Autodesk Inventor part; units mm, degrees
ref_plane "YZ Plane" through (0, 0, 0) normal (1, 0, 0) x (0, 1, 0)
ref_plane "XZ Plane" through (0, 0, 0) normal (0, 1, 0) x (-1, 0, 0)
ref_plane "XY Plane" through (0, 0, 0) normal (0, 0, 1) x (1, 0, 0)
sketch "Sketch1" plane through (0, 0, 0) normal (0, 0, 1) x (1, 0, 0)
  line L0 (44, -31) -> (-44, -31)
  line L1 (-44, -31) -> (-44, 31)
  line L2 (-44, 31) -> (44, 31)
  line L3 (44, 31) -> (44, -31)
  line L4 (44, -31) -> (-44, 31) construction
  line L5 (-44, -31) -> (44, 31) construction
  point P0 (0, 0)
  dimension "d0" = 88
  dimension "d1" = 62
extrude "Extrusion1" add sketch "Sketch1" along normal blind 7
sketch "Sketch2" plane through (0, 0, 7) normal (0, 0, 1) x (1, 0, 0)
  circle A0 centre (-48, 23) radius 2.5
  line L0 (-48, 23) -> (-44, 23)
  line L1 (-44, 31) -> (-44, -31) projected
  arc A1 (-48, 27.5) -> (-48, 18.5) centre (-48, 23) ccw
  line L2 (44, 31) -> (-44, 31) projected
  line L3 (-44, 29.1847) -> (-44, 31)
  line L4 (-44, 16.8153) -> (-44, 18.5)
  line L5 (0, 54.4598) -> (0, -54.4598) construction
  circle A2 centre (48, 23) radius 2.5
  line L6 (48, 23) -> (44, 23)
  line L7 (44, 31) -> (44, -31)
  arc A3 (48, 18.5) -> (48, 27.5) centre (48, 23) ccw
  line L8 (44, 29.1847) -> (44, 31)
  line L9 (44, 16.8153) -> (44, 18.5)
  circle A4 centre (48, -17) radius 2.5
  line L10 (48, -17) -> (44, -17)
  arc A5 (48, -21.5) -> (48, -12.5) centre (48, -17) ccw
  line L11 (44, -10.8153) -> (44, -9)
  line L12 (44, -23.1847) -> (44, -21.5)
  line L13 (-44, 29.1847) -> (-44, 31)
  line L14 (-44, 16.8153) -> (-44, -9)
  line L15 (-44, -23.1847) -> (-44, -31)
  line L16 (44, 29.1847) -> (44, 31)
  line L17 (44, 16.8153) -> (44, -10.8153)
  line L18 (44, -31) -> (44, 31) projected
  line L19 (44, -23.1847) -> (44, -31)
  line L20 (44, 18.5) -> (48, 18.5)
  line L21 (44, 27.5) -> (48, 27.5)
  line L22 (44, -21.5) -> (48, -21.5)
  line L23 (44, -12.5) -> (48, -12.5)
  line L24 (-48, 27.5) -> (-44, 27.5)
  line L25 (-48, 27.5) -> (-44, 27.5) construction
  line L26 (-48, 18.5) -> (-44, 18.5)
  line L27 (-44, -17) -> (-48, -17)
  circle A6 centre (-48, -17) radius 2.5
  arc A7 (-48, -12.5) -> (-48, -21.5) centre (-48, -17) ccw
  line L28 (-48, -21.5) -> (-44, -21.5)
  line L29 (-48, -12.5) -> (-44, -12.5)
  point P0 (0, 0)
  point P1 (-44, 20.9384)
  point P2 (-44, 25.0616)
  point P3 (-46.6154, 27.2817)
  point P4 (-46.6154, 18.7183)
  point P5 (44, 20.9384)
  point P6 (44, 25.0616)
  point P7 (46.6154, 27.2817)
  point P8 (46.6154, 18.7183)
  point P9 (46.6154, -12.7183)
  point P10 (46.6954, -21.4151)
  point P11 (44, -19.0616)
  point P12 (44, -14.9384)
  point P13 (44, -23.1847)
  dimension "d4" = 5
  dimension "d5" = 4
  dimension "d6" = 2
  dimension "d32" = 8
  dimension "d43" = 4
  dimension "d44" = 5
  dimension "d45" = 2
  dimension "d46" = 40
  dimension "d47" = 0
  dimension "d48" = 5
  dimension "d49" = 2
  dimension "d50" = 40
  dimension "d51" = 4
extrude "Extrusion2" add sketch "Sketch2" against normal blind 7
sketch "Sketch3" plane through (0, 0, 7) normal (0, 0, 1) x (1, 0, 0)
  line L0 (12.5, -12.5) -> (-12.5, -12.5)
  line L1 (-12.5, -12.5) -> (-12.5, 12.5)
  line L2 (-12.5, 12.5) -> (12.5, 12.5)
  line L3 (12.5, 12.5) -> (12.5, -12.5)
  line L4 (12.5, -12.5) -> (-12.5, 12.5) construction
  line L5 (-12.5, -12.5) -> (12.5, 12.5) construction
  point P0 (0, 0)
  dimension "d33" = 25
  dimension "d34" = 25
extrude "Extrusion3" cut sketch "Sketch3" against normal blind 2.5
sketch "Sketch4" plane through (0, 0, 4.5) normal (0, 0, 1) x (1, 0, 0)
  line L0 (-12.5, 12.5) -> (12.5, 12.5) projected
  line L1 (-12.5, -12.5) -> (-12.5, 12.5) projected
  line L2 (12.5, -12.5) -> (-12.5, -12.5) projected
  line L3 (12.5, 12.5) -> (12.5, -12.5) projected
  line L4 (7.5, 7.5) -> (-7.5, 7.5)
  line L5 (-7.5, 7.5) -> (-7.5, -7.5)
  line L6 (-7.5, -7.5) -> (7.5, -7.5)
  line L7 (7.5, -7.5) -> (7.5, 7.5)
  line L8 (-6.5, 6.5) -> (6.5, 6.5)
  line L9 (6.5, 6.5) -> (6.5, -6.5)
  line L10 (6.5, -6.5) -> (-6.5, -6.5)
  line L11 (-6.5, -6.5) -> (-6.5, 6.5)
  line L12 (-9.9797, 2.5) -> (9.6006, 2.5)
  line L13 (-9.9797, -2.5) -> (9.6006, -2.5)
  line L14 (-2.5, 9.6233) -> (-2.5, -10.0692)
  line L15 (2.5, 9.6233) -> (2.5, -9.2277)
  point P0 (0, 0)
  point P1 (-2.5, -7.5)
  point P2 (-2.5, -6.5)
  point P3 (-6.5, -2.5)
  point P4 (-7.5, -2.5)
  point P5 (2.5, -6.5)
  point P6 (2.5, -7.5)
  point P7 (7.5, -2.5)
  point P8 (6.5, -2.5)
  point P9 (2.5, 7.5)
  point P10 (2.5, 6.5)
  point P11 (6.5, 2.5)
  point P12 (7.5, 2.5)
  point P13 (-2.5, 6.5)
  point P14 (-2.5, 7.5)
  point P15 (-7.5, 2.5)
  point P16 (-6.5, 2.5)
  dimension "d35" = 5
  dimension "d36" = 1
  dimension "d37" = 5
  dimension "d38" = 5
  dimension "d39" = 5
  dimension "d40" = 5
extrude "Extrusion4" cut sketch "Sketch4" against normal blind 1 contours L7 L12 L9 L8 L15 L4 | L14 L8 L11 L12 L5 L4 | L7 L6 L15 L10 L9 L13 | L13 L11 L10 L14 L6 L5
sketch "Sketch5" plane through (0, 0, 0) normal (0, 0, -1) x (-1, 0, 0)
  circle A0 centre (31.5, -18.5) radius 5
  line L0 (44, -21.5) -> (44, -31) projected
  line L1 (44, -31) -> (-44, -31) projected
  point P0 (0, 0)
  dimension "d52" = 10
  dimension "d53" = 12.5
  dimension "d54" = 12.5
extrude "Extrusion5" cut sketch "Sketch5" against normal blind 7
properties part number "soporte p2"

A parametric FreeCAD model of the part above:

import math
import FreeCAD as App
import Part
import Sketcher
from FreeCAD import Vector

doc = App.newDocument("Part")
body = doc.addObject("PartDesign::Body", "Body")

# Sketch on XY plane
sketch1 = doc.addObject("Sketcher::SketchObject", "Sketch")
body.addObject(sketch1)
sketch1.AttachmentSupport = (doc.XY_Plane, [""])
sketch1.MapMode = "FlatFace"
sketch1.addGeometry([
    Part.LineSegment(Vector(-44, -31, 0), Vector(44, -31, 0)),
    Part.LineSegment(Vector(44, -31, 0), Vector(44, 31, 0)),
    Part.LineSegment(Vector(44, 31, 0), Vector(-44, 31, 0)),
    Part.LineSegment(Vector(-44, 31, 0), Vector(-44, -31, 0)),
], False)
sketch1.addConstraint([
    Sketcher.Constraint("Coincident", 0, 2, 1, 1),
    Sketcher.Constraint("Coincident", 1, 2, 2, 1),
    Sketcher.Constraint("Coincident", 2, 2, 3, 1),
    Sketcher.Constraint("Coincident", 3, 2, 0, 1),
    Sketcher.Constraint("Horizontal", 0),
    Sketcher.Constraint("Vertical", 1),
    Sketcher.Constraint("Horizontal", 2),
    Sketcher.Constraint("Vertical", 3),
    Sketcher.Constraint("Symmetric", 0, 2, 2, 2, -1, 1),
    Sketcher.Constraint("DistanceX", 0, 1, 0, 2, 88.0),
    Sketcher.Constraint("DistanceY", 1, 1, 1, 2, 62.0),
])
pad1 = doc.addObject("PartDesign::Pad", "Pad")
body.addObject(pad1)
pad1.Profile = sketch1
pad1.Length = 7

# Sketch on XY plane
sketch2 = doc.addObject("Sketcher::SketchObject", "Sketch001")
body.addObject(sketch2)
sketch2.AttachmentSupport = (doc.XY_Plane, [""])
sketch2.MapMode = "FlatFace"
sketch2.AttachmentOffset = App.Placement(Vector(0, 0, 7), App.Rotation())
sketch2.addGeometry([
    Part.LineSegment(Vector(-44, 18.5, 0), Vector(-44, 23, 0)),  # 0
    Part.LineSegment(Vector(-44, 23, 0), Vector(-44, 27.5, 0)),  # 1
    Part.LineSegment(Vector(-44, 27.5, 0), Vector(-48, 27.5, 0)),  # 2
    Part.ArcOfCircle(Part.Circle(Vector(-48, 23, 0), Vector(0, 0, 1), 4.5), math.radians(90), math.radians(270)),  # 3
    Part.LineSegment(Vector(-48, 18.5, 0), Vector(-44, 18.5, 0)),  # 4
    Part.Circle(Vector(-48, 23, 0), Vector(0, 0, 1), 2.5),  # 5
    Part.LineSegment(Vector(-44, -17, 0), Vector(-44, -12.5, 0)),  # 6
    Part.LineSegment(Vector(-44, -12.5, 0), Vector(-48, -12.5, 0)),  # 7
    Part.ArcOfCircle(Part.Circle(Vector(-48, -17, 0), Vector(0, 0, 1), 4.5), math.radians(90), math.radians(270)),  # 8
    Part.LineSegment(Vector(-48, -21.5, 0), Vector(-44, -21.5, 0)),  # 9
    Part.LineSegment(Vector(-44, -21.5, 0), Vector(-44, -17, 0)),  # 10
    Part.Circle(Vector(-48, -17, 0), Vector(0, 0, 1), 2.5),  # 11
    Part.LineSegment(Vector(48, -12.5, 0), Vector(44, -12.5, 0)),  # 12
    Part.LineSegment(Vector(44, -12.5, 0), Vector(44, -17, 0)),  # 13
    Part.LineSegment(Vector(44, -17, 0), Vector(44, -21.5, 0)),  # 14
    Part.LineSegment(Vector(44, -21.5, 0), Vector(48, -21.5, 0)),  # 15
    Part.ArcOfCircle(Part.Circle(Vector(48, -17, 0), Vector(0, 0, 1), 4.5), math.radians(-90), math.radians(90)),  # 16
    Part.Circle(Vector(48, -17, 0), Vector(0, 0, 1), 2.5),  # 17
    Part.LineSegment(Vector(48, 27.5, 0), Vector(44, 27.5, 0)),  # 18
    Part.LineSegment(Vector(44, 27.5, 0), Vector(44, 23, 0)),  # 19
    Part.LineSegment(Vector(44, 23, 0), Vector(44, 18.5, 0)),  # 20
    Part.LineSegment(Vector(44, 18.5, 0), Vector(48, 18.5, 0)),  # 21
    Part.ArcOfCircle(Part.Circle(Vector(48, 23, 0), Vector(0, 0, 1), 4.5), math.radians(-90), math.radians(90)),  # 22
    Part.Circle(Vector(48, 23, 0), Vector(0, 0, 1), 2.5),  # 23
], False)
sketch2.addConstraint([
    Sketcher.Constraint("Coincident", 0, 2, 1, 1),
    Sketcher.Constraint("Coincident", 1, 2, 2, 1),
    Sketcher.Constraint("Tangent", 2, 2, 3, 1),
    Sketcher.Constraint("Tangent", 3, 2, 4, 1),
    Sketcher.Constraint("Coincident", 4, 2, 0, 1),
    Sketcher.Constraint("Coincident", 6, 2, 7, 1),
    Sketcher.Constraint("Tangent", 7, 2, 8, 1),
    Sketcher.Constraint("Tangent", 8, 2, 9, 1),
    Sketcher.Constraint("Coincident", 9, 2, 10, 1),
    Sketcher.Constraint("Coincident", 10, 2, 6, 1),
    Sketcher.Constraint("Coincident", 12, 2, 13, 1),
    Sketcher.Constraint("Coincident", 13, 2, 14, 1),
    Sketcher.Constraint("Coincident", 14, 2, 15, 1),
    Sketcher.Constraint("Tangent", 15, 2, 16, 1),
    Sketcher.Constraint("Tangent", 16, 2, 12, 1),
    Sketcher.Constraint("Coincident", 18, 2, 19, 1),
    Sketcher.Constraint("Coincident", 19, 2, 20, 1),
    Sketcher.Constraint("Coincident", 20, 2, 21, 1),
    Sketcher.Constraint("Tangent", 21, 2, 22, 1),
    Sketcher.Constraint("Tangent", 22, 2, 18, 1),
    Sketcher.Constraint("Vertical", 0),
    Sketcher.Constraint("Vertical", 1),
    Sketcher.Constraint("Horizontal", 2),
    Sketcher.Constraint("Horizontal", 4),
    Sketcher.Constraint("Vertical", 6),
    Sketcher.Constraint("Horizontal", 7),
    Sketcher.Constraint("Horizontal", 9),
    Sketcher.Constraint("Vertical", 10),
    Sketcher.Constraint("Horizontal", 12),
    Sketcher.Constraint("Vertical", 13),
    Sketcher.Constraint("Vertical", 14),
    Sketcher.Constraint("Horizontal", 15),
    Sketcher.Constraint("Horizontal", 18),
    Sketcher.Constraint("Vertical", 19),
    Sketcher.Constraint("Vertical", 20),
    Sketcher.Constraint("Horizontal", 21),
    Sketcher.Constraint("Coincident", 5, 3, 3, 3),
    Sketcher.Constraint("Coincident", 11, 3, 8, 3),
    Sketcher.Constraint("Coincident", 17, 3, 16, 3),
    Sketcher.Constraint("Coincident", 23, 3, 22, 3),
    Sketcher.Constraint("Equal", 3, 8),
    Sketcher.Constraint("Equal", 5, 11),
    Sketcher.Constraint("Equal", 8, 16),
    Sketcher.Constraint("Equal", 11, 17),
    Sketcher.Constraint("Equal", 16, 22),
    Sketcher.Constraint("Equal", 17, 23),
    Sketcher.Constraint("Symmetric", 8, 3, 16, 3, -2),
    Sketcher.Constraint("Symmetric", 3, 3, 22, 3, -2),
    Sketcher.Constraint("Symmetric", 10, 2, 13, 2, -2),
    Sketcher.Constraint("Symmetric", 0, 2, 19, 2, -2),
    Sketcher.Constraint("Horizontal", 23, 3, 0, 2),
    Sketcher.Constraint("Horizontal", 17, 3, 10, 2),
    Sketcher.Constraint("Vertical", 5, 3, 8, 3),
    Sketcher.Constraint("Vertical", 4, 2, 6, 2),
    Sketcher.Constraint("Diameter", 5, 5.0),
    Sketcher.Constraint("DistanceX", 2, 2, 2, 1, 4.0),
    Sketcher.Constraint("DistanceY", 8, 3, 3, 3, 40.0),
    Sketcher.Constraint("Radius", 3, 4.5),
    Sketcher.Constraint("DistanceX", 3, 3, -1, 1, 48.0),
    Sketcher.Constraint("DistanceY", -1, 1, 3, 3, 23.0),
])
pad2 = doc.addObject("PartDesign::Pad", "Pad001")
body.addObject(pad2)
pad2.Profile = sketch2
pad2.Length = 7
pad2.Reversed = True

# Sketch on XY plane
sketch3 = doc.addObject("Sketcher::SketchObject", "Sketch002")
body.addObject(sketch3)
sketch3.AttachmentSupport = (doc.XY_Plane, [""])
sketch3.MapMode = "FlatFace"
sketch3.AttachmentOffset = App.Placement(Vector(0, 0, 7), App.Rotation())
sketch3.addGeometry([
    Part.LineSegment(Vector(-12, -12, 0), Vector(12, -12, 0)),
    Part.LineSegment(Vector(12, -12, 0), Vector(12, 12, 0)),
    Part.LineSegment(Vector(12, 12, 0), Vector(-12, 12, 0)),
    Part.LineSegment(Vector(-12, 12, 0), Vector(-12, -12, 0)),
], False)
sketch3.addConstraint([
    Sketcher.Constraint("Coincident", 0, 2, 1, 1),
    Sketcher.Constraint("Coincident", 1, 2, 2, 1),
    Sketcher.Constraint("Coincident", 2, 2, 3, 1),
    Sketcher.Constraint("Coincident", 3, 2, 0, 1),
    Sketcher.Constraint("Horizontal", 0),
    Sketcher.Constraint("Vertical", 1),
    Sketcher.Constraint("Horizontal", 2),
    Sketcher.Constraint("Vertical", 3),
    Sketcher.Constraint("Symmetric", 0, 2, 2, 2, -1, 1),
    Sketcher.Constraint("Equal", 2, 1),
    Sketcher.Constraint("DistanceX", 0, 1, 0, 2, 25.0),
])
pocket1 = doc.addObject("PartDesign::Pocket", "Pocket")
body.addObject(pocket1)
pocket1.Profile = sketch3
pocket1.Length = 2.5

# Sketch on XY plane
sketch4 = doc.addObject("Sketcher::SketchObject", "Sketch003")
body.addObject(sketch4)
sketch4.AttachmentSupport = (doc.XY_Plane, [""])
sketch4.MapMode = "FlatFace"
sketch4.AttachmentOffset = App.Placement(Vector(0, 0, 4.5), App.Rotation())
sketch4.addGeometry([
    Part.LineSegment(Vector(7.5, 2.5, 0), Vector(7.5, 7.5, 0)),  # 0
    Part.LineSegment(Vector(7.5, 7.5, 0), Vector(2.5, 7.5, 0)),  # 1
    Part.LineSegment(Vector(2.5, 7.5, 0), Vector(2.5, 6.5, 0)),  # 2
    Part.LineSegment(Vector(2.5, 6.5, 0), Vector(6.5, 6.5, 0)),  # 3
    Part.LineSegment(Vector(6.5, 6.5, 0), Vector(6.5, 2.5, 0)),  # 4
    Part.LineSegment(Vector(6.5, 2.5, 0), Vector(7.5, 2.5, 0)),  # 5
    Part.LineSegment(Vector(-2.5, 6.5, 0), Vector(-2.5, 7.5, 0)),  # 6
    Part.LineSegment(Vector(-2.5, 7.5, 0), Vector(-7.5, 7.5, 0)),  # 7
    Part.LineSegment(Vector(-7.5, 7.5, 0), Vector(-7.5, 2.5, 0)),  # 8
    Part.LineSegment(Vector(-7.5, 2.5, 0), Vector(-6.5, 2.5, 0)),  # 9
    Part.LineSegment(Vector(-6.5, 2.5, 0), Vector(-6.5, 6.5, 0)),  # 10
    Part.LineSegment(Vector(-6.5, 6.5, 0), Vector(-2.5, 6.5, 0)),  # 11
    Part.LineSegment(Vector(7.5, -7.5, 0), Vector(7.5, -2.5, 0)),  # 12
    Part.LineSegment(Vector(7.5, -2.5, 0), Vector(6.5, -2.5, 0)),  # 13
    Part.LineSegment(Vector(6.5, -2.5, 0), Vector(6.5, -6.5, 0)),  # 14
    Part.LineSegment(Vector(6.5, -6.5, 0), Vector(2.5, -6.5, 0)),  # 15
    Part.LineSegment(Vector(2.5, -6.5, 0), Vector(2.5, -7.5, 0)),  # 16
    Part.LineSegment(Vector(2.5, -7.5, 0), Vector(7.5, -7.5, 0)),  # 17
    Part.LineSegment(Vector(-6.5, -2.5, 0), Vector(-7.5, -2.5, 0)),  # 18
    Part.LineSegment(Vector(-7.5, -2.5, 0), Vector(-7.5, -7.5, 0)),  # 19
    Part.LineSegment(Vector(-7.5, -7.5, 0), Vector(-2.5, -7.5, 0)),  # 20
    Part.LineSegment(Vector(-2.5, -7.5, 0), Vector(-2.5, -6.5, 0)),  # 21
    Part.LineSegment(Vector(-2.5, -6.5, 0), Vector(-6.5, -6.5, 0)),  # 22
    Part.LineSegment(Vector(-6.5, -6.5, 0), Vector(-6.5, -2.5, 0)),  # 23
], False)
sketch4.addConstraint([
    Sketcher.Constraint("Coincident", 0, 2, 1, 1),
    Sketcher.Constraint("Coincident", 1, 2, 2, 1),
    Sketcher.Constraint("Coincident", 2, 2, 3, 1),
    Sketcher.Constraint("Coincident", 3, 2, 4, 1),
    Sketcher.Constraint("Coincident", 4, 2, 5, 1),
    Sketcher.Constraint("Coincident", 5, 2, 0, 1),
    Sketcher.Constraint("Coincident", 6, 2, 7, 1),
    Sketcher.Constraint("Coincident", 7, 2, 8, 1),
    Sketcher.Constraint("Coincident", 8, 2, 9, 1),
    Sketcher.Constraint("Coincident", 9, 2, 10, 1),
    Sketcher.Constraint("Coincident", 10, 2, 11, 1),
    Sketcher.Constraint("Coincident", 11, 2, 6, 1),
    Sketcher.Constraint("Coincident", 12, 2, 13, 1),
    Sketcher.Constraint("Coincident", 13, 2, 14, 1),
    Sketcher.Constraint("Coincident", 14, 2, 15, 1),
    Sketcher.Constraint("Coincident", 15, 2, 16, 1),
    Sketcher.Constraint("Coincident", 16, 2, 17, 1),
    Sketcher.Constraint("Coincident", 17, 2, 12, 1),
    Sketcher.Constraint("Coincident", 18, 2, 19, 1),
    Sketcher.Constraint("Coincident", 19, 2, 20, 1),
    Sketcher.Constraint("Coincident", 20, 2, 21, 1),
    Sketcher.Constraint("Coincident", 21, 2, 22, 1),
    Sketcher.Constraint("Coincident", 22, 2, 23, 1),
    Sketcher.Constraint("Coincident", 23, 2, 18, 1),
    Sketcher.Constraint("Vertical", 0),
    Sketcher.Constraint("Horizontal", 1),
    Sketcher.Constraint("Vertical", 2),
    Sketcher.Constraint("Horizontal", 3),
    Sketcher.Constraint("Vertical", 4),
    Sketcher.Constraint("Horizontal", 5),
    Sketcher.Constraint("Vertical", 6),
    Sketcher.Constraint("Horizontal", 7),
    Sketcher.Constraint("Vertical", 8),
    Sketcher.Constraint("Horizontal", 9),
    Sketcher.Constraint("Vertical", 10),
    Sketcher.Constraint("Horizontal", 11),
    Sketcher.Constraint("Vertical", 12),
    Sketcher.Constraint("Horizontal", 13),
    Sketcher.Constraint("Vertical", 14),
    Sketcher.Constraint("Horizontal", 15),
    Sketcher.Constraint("Vertical", 16),
    Sketcher.Constraint("Horizontal", 17),
    Sketcher.Constraint("Horizontal", 18),
    Sketcher.Constraint("Vertical", 19),
    Sketcher.Constraint("Horizontal", 20),
    Sketcher.Constraint("Vertical", 21),
    Sketcher.Constraint("Horizontal", 22),
    Sketcher.Constraint("Vertical", 23),
    Sketcher.Constraint("Symmetric", 8, 2, 12, 2, -1, 1),
    Sketcher.Constraint("Symmetric", 10, 2, 14, 2, -1, 1),
    Sketcher.Constraint("Symmetric", 6, 2, 16, 2, -1, 1),
    Sketcher.Constraint("Symmetric", 5, 2, 18, 2, -1, 1),
    Sketcher.Constraint("Symmetric", 1, 2, 20, 2, -1, 1),
    Sketcher.Constraint("Symmetric", 3, 2, 22, 2, -1, 1),
    Sketcher.Constraint("Symmetric", 1, 2, 6, 2, -2),
    Sketcher.Constraint("Symmetric", 5, 2, 8, 2, -2),
    Sketcher.Constraint("Symmetric", 3, 2, 10, 2, -2),
    Sketcher.Constraint("Equal", 20, 0),
    Sketcher.Constraint("Equal", 18, 2),
    Sketcher.Constraint("DistanceX", 1, 2, 1, 1, 5.0),
    Sketcher.Constraint("DistanceX", 5, 1, 5, 2, 1.0),
    Sketcher.Constraint("DistanceX", 6, 2, 1, 2, 5.0),
    Sketcher.Constraint("DistanceY", 12, 2, 5, 2, 5.0),
])
pocket2 = doc.addObject("PartDesign::Pocket", "Pocket001")
body.addObject(pocket2)
pocket2.Profile = sketch4
pocket2.Length = 1

# Sketch on XY plane
sketch5 = doc.addObject("Sketcher::SketchObject", "Sketch004")
body.addObject(sketch5)
sketch5.AttachmentSupport = (doc.XY_Plane, [""])
sketch5.MapMode = "FlatFace"
sketch5.addGeometry(Part.Circle(Vector(-32, -18, 0), Vector(0, 0, 1), 5), False)
sketch5.addConstraint([
    Sketcher.Constraint("Diameter", 0, 10.0),
    Sketcher.Constraint("DistanceX", 0, 3, -1, 1, 31.5),
    Sketcher.Constraint("DistanceY", 0, 3, -1, 1, 18.5),
])
pocket3 = doc.addObject("PartDesign::Pocket", "Pocket002")
body.addObject(pocket3)
pocket3.Profile = sketch5
pocket3.Length = 7
pocket3.Reversed = True

doc.recompute()
